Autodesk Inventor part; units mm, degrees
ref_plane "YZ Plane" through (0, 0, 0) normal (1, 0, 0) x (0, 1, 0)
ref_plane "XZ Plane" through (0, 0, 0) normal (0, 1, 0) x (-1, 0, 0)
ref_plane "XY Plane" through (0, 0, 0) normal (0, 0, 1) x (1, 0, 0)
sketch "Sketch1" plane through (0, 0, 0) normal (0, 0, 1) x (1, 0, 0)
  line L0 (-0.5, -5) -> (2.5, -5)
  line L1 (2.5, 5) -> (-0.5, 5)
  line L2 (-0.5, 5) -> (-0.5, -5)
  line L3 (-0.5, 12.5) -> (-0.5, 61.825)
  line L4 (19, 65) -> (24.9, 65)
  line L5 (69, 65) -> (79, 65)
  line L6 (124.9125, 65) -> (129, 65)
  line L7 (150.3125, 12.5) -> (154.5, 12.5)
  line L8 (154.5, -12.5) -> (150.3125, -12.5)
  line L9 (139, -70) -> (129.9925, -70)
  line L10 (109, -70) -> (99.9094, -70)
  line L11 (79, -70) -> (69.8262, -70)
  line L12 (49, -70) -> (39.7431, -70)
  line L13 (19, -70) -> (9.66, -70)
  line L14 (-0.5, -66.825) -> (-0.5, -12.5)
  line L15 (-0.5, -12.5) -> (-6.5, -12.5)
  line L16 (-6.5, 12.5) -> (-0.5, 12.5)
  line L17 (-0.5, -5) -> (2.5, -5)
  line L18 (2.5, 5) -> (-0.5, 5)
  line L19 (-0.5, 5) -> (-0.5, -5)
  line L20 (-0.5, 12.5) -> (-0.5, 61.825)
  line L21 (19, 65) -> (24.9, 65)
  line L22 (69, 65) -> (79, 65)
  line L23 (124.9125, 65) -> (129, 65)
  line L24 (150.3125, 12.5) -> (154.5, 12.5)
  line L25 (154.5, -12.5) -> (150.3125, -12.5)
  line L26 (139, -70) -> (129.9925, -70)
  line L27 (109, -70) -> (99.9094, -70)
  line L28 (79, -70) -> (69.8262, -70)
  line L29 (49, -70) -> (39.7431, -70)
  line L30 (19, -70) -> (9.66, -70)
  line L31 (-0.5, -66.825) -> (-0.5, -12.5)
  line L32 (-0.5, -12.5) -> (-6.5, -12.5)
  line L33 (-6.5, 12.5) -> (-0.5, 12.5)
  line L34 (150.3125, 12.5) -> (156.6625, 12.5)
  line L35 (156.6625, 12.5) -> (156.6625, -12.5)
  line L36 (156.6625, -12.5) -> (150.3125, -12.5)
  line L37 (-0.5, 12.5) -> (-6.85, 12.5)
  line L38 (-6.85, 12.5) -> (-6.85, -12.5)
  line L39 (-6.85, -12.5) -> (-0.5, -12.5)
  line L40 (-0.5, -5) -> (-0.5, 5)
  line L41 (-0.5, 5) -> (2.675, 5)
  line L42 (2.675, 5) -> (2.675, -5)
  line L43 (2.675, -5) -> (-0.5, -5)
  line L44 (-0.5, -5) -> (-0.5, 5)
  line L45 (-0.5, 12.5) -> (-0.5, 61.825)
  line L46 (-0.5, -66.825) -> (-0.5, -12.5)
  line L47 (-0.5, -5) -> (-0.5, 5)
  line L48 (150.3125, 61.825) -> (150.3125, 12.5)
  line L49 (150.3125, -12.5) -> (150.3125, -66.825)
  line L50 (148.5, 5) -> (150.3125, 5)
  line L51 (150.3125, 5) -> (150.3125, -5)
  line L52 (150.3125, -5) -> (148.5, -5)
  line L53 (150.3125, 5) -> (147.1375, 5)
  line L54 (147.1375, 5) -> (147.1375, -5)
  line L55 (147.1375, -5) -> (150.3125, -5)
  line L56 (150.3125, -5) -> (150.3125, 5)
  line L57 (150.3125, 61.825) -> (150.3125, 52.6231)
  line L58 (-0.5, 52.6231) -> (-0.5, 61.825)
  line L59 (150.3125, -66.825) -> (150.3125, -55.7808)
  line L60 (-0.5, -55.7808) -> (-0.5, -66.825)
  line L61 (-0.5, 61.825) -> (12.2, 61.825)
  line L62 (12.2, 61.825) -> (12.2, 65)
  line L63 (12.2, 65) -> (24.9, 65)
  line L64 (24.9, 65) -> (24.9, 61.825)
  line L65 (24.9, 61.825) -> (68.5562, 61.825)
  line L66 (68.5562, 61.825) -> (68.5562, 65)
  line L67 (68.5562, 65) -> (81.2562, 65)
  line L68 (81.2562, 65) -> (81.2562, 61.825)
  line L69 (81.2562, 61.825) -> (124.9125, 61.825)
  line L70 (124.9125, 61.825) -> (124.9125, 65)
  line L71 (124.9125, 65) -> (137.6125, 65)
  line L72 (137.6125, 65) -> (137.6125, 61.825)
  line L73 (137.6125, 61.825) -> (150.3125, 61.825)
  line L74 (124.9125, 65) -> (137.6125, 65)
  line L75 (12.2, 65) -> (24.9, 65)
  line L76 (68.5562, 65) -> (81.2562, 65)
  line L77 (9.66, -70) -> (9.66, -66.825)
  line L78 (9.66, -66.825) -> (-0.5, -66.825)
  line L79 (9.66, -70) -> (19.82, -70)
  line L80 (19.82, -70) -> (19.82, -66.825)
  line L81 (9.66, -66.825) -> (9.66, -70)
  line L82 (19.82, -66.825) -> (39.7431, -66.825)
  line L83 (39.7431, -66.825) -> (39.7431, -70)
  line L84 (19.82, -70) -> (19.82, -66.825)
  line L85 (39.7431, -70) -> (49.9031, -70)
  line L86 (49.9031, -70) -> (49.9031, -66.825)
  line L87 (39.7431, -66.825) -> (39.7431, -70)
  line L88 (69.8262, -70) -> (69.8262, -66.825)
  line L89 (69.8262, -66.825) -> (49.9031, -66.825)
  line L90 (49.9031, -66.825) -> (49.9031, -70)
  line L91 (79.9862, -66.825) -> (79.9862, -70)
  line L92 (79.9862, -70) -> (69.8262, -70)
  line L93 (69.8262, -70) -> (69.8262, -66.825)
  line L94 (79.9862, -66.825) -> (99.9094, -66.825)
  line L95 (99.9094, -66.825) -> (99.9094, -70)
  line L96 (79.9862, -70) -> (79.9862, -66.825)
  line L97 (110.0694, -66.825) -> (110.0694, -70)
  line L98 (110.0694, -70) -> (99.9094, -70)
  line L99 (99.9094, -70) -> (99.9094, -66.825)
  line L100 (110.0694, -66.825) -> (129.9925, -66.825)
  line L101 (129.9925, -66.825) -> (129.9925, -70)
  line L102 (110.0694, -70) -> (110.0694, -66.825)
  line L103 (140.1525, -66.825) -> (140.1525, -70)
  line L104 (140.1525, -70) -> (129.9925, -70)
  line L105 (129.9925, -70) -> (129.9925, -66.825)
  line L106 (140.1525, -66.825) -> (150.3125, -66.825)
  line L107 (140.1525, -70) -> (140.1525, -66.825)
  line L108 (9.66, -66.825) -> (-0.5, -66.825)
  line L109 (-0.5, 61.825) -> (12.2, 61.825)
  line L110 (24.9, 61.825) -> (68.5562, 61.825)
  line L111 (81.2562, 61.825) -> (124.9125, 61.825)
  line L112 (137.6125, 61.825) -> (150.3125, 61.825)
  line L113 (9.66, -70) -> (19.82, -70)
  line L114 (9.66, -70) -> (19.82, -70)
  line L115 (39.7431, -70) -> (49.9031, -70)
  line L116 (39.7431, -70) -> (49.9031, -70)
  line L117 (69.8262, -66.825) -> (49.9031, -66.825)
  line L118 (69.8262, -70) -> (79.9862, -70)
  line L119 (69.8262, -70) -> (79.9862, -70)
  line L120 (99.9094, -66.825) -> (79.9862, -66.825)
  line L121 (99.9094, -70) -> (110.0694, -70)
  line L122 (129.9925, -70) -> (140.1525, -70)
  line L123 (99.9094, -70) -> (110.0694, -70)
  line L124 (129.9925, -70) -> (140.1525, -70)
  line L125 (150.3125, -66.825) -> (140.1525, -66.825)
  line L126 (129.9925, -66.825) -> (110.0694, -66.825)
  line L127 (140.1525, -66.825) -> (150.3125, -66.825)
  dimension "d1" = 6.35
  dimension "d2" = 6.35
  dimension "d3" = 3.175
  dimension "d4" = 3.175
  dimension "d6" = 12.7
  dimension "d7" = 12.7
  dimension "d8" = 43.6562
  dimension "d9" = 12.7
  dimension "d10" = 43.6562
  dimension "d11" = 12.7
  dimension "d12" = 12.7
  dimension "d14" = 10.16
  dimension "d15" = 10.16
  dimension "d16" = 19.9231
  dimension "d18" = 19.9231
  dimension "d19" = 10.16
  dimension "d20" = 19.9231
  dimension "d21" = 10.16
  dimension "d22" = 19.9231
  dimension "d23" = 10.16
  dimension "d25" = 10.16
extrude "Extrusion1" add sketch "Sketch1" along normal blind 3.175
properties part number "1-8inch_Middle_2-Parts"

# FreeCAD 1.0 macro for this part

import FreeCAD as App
import Part
import Sketcher

V = App.Vector
Q = App.Units.Quantity


def add_polygon(sketch, points):
    """Adds a closed chain of lines whose ends are joined by coincident constraints."""
    first, n = sketch.GeometryCount, len(points)
    for a, b in zip(points, points[1:] + points[:1]):
        sketch.addGeometry(Part.LineSegment(App.Vector(*a, 0), App.Vector(*b, 0)), False)
    for i in range(n):
        sketch.addConstraint(Sketcher.Constraint("Coincident", first + i, 2, first + (i + 1) % n, 1))

doc = App.newDocument("Part")
body = doc.addObject("PartDesign::Body", "Body")

# Sketch on XY plane
sketch1 = body.newObject("Sketcher::SketchObject", "Sketch")
sketch1.AttachmentSupport = (doc.getObject("XY_Plane"), [""])
sketch1.MapMode = "FlatFace"
add_polygon(sketch1, [(-0.5, 61.8), (-0.5, 12.5), (-6.8, 12.5), (-6.8, -12.5), (-0.5, -12.5), (-0.5, -66.8), (9.7, -66.8), (9.7, -70), (19.8, -70), (19.8, -66.8), (39.7, -66.8), (39.7, -70), (49.9, -70), (49.9, -66.8), (69.8, -66.8), (69.8, -70), (80, -70), (80, -66.8), (99.9, -66.8), (99.9, -70), (110.1, -70), (110.1, -66.8), (130, -66.8), (130, -70), (140.2, -70), (140.2, -66.8), (150.3, -66.8), (150.3, -12.5), (156.7, -12.5), (156.7, 12.5), (150.3, 12.5), (150.3, 61.8), (137.6, 61.8), (137.6, 65), (124.9, 65), (124.9, 61.8), (81.3, 61.8), (81.3, 65), (68.6, 65), (68.6, 61.8), (24.9, 61.8), (24.9, 65), (12.2, 65), (12.2, 61.8)])  # lines 0-43
add_polygon(sketch1, [(2.7, -5), (-0.5, -5), (-0.5, 5), (2.7, 5)])  # lines 44-47
add_polygon(sketch1, [(147.1, 5), (150.3, 5), (150.3, -5), (147.1, -5)])  # lines 48-51
sketch1.addConstraint([
    Sketcher.Constraint("Vertical", 0),
    Sketcher.Constraint("Horizontal", 1),
    Sketcher.Constraint("Vertical", 2),
    Sketcher.Constraint("Horizontal", 3),
    Sketcher.Constraint("Vertical", 4),
    Sketcher.Constraint("Horizontal", 5),
    Sketcher.Constraint("Vertical", 6),
    Sketcher.Constraint("Horizontal", 7),
    Sketcher.Constraint("Vertical", 8),
    Sketcher.Constraint("Horizontal", 9),
    Sketcher.Constraint("Vertical", 10),
    Sketcher.Constraint("Horizontal", 11),
    Sketcher.Constraint("Vertical", 12),
    Sketcher.Constraint("Horizontal", 13),
    Sketcher.Constraint("Vertical", 14),
    Sketcher.Constraint("Horizontal", 15),
    Sketcher.Constraint("Vertical", 16),
    Sketcher.Constraint("Horizontal", 17),
    Sketcher.Constraint("Vertical", 18),
    Sketcher.Constraint("Horizontal", 19),
    Sketcher.Constraint("Vertical", 20),
    Sketcher.Constraint("Horizontal", 21),
    Sketcher.Constraint("Vertical", 22),
    Sketcher.Constraint("Horizontal", 23),
    Sketcher.Constraint("Vertical", 24),
    Sketcher.Constraint("Horizontal", 25),
    Sketcher.Constraint("Vertical", 26),
    Sketcher.Constraint("Horizontal", 27),
    Sketcher.Constraint("Vertical", 28),
    Sketcher.Constraint("Horizontal", 29),
    Sketcher.Constraint("Vertical", 30),
    Sketcher.Constraint("Horizontal", 31),
    Sketcher.Constraint("Vertical", 32),
    Sketcher.Constraint("Horizontal", 33),
    Sketcher.Constraint("Vertical", 34),
    Sketcher.Constraint("Horizontal", 35),
    Sketcher.Constraint("Vertical", 36),
    Sketcher.Constraint("Horizontal", 37),
    Sketcher.Constraint("Vertical", 38),
    Sketcher.Constraint("Horizontal", 39),
    Sketcher.Constraint("Vertical", 40),
    Sketcher.Constraint("Horizontal", 41),
    Sketcher.Constraint("Vertical", 42),
    Sketcher.Constraint("Horizontal", 43),
    Sketcher.Constraint("Horizontal", 44),
    Sketcher.Constraint("Vertical", 45),
    Sketcher.Constraint("Horizontal", 46),
    Sketcher.Constraint("Vertical", 47),
    Sketcher.Constraint("Horizontal", 48),
    Sketcher.Constraint("Vertical", 49),
    Sketcher.Constraint("Horizontal", 50),
    Sketcher.Constraint("Vertical", 51),
    Sketcher.Constraint("Symmetric", 0, 2, 3, 2, -1),
    Sketcher.Constraint("Symmetric", 26, 2, 29, 2, -1),
    Sketcher.Constraint("Horizontal", 5, 2, 8, 2),
    Sketcher.Constraint("Horizontal", 7, 2, 10, 2),
    Sketcher.Constraint("Horizontal", 9, 2, 12, 2),
    Sketcher.Constraint("Horizontal", 11, 2, 14, 2),
    Sketcher.Constraint("Horizontal", 13, 2, 16, 2),
    Sketcher.Constraint("Horizontal", 15, 2, 18, 2),
    Sketcher.Constraint("Horizontal", 17, 2, 20, 2),
    Sketcher.Constraint("Horizontal", 19, 2, 22, 2),
    Sketcher.Constraint("Horizontal", 21, 2, 24, 2),
    Sketcher.Constraint("Horizontal", 3, 2, 26, 2),
    Sketcher.Constraint("Horizontal", 31, 2, 34, 2),
    Sketcher.Constraint("Horizontal", 33, 2, 36, 2),
    Sketcher.Constraint("Horizontal", 35, 2, 38, 2),
    Sketcher.Constraint("Horizontal", 37, 2, 40, 2),
    Sketcher.Constraint("Horizontal", 39, 2, 42, 2),
    Sketcher.Constraint("Horizontal", 46, 2, 48, 2),
    Sketcher.Constraint("Horizontal", 47, 2, 49, 2),
    Sketcher.Constraint("Vertical", 43, 2, 44, 2),
    Sketcher.Constraint("Vertical", 30, 2, 48, 2),
    Sketcher.Constraint("Equal", 5, 7),
    Sketcher.Constraint("Equal", 7, 11),
    Sketcher.Constraint("Equal", 9, 13),
    Sketcher.Constraint("Equal", 11, 15),
    Sketcher.Constraint("Equal", 13, 17),
    Sketcher.Constraint("Equal", 15, 19),
    Sketcher.Constraint("Equal", 17, 21),
    Sketcher.Constraint("Equal", 19, 23),
    Sketcher.Constraint("Equal", 23, 25),
    Sketcher.Constraint("Equal", 3, 27),
    Sketcher.Constraint("Equal", 31, 33),
    Sketcher.Constraint("Equal", 33, 37),
    Sketcher.Constraint("Equal", 35, 39),
    Sketcher.Constraint("Equal", 37, 41),
    Sketcher.Constraint("Equal", 41, 43),
    Sketcher.Constraint("Equal", 46, 48),
    Sketcher.Constraint("Equal", 50, 6),
    Sketcher.Constraint("Equal", 24, 32),
    Sketcher.Constraint("DistanceX", 5, 1, 5, 2, Q("0.4 in")),
    Sketcher.Constraint("DistanceX", 31, 2, 31, 1, Q("0.5 in")),
    Sketcher.Constraint("DistanceX", 1, 2, 1, 1, Q("0.25 in")),
    Sketcher.Constraint("DistanceX", 35, 2, 35, 1, Q("1.718752 in")),
    Sketcher.Constraint("DistanceX", 44, 2, 44, 1, Q("0.125 in")),
    Sketcher.Constraint("DistanceY", 45, 1, 45, 2, Q("0.3937 in")),
    Sketcher.Constraint("DistanceY", 0, 2, 0, 1, 49.325),
    Sketcher.Constraint("DistanceY", 2, 2, 2, 1, 25.0),
    Sketcher.Constraint("DistanceY", 4, 2, 4, 1, 54.325),
    Sketcher.Constraint("DistanceX", -1, 1, 9, 2, Q("1.5647 in")),
    Sketcher.Constraint("DistanceY", 48, 2, 30, 2, Q("2.2372 in")),
])
pad1 = body.newObject("PartDesign::Pad", "Pad")
pad1.Profile = sketch1
pad1.Length = Q("0.125 in")

doc.recompute()
